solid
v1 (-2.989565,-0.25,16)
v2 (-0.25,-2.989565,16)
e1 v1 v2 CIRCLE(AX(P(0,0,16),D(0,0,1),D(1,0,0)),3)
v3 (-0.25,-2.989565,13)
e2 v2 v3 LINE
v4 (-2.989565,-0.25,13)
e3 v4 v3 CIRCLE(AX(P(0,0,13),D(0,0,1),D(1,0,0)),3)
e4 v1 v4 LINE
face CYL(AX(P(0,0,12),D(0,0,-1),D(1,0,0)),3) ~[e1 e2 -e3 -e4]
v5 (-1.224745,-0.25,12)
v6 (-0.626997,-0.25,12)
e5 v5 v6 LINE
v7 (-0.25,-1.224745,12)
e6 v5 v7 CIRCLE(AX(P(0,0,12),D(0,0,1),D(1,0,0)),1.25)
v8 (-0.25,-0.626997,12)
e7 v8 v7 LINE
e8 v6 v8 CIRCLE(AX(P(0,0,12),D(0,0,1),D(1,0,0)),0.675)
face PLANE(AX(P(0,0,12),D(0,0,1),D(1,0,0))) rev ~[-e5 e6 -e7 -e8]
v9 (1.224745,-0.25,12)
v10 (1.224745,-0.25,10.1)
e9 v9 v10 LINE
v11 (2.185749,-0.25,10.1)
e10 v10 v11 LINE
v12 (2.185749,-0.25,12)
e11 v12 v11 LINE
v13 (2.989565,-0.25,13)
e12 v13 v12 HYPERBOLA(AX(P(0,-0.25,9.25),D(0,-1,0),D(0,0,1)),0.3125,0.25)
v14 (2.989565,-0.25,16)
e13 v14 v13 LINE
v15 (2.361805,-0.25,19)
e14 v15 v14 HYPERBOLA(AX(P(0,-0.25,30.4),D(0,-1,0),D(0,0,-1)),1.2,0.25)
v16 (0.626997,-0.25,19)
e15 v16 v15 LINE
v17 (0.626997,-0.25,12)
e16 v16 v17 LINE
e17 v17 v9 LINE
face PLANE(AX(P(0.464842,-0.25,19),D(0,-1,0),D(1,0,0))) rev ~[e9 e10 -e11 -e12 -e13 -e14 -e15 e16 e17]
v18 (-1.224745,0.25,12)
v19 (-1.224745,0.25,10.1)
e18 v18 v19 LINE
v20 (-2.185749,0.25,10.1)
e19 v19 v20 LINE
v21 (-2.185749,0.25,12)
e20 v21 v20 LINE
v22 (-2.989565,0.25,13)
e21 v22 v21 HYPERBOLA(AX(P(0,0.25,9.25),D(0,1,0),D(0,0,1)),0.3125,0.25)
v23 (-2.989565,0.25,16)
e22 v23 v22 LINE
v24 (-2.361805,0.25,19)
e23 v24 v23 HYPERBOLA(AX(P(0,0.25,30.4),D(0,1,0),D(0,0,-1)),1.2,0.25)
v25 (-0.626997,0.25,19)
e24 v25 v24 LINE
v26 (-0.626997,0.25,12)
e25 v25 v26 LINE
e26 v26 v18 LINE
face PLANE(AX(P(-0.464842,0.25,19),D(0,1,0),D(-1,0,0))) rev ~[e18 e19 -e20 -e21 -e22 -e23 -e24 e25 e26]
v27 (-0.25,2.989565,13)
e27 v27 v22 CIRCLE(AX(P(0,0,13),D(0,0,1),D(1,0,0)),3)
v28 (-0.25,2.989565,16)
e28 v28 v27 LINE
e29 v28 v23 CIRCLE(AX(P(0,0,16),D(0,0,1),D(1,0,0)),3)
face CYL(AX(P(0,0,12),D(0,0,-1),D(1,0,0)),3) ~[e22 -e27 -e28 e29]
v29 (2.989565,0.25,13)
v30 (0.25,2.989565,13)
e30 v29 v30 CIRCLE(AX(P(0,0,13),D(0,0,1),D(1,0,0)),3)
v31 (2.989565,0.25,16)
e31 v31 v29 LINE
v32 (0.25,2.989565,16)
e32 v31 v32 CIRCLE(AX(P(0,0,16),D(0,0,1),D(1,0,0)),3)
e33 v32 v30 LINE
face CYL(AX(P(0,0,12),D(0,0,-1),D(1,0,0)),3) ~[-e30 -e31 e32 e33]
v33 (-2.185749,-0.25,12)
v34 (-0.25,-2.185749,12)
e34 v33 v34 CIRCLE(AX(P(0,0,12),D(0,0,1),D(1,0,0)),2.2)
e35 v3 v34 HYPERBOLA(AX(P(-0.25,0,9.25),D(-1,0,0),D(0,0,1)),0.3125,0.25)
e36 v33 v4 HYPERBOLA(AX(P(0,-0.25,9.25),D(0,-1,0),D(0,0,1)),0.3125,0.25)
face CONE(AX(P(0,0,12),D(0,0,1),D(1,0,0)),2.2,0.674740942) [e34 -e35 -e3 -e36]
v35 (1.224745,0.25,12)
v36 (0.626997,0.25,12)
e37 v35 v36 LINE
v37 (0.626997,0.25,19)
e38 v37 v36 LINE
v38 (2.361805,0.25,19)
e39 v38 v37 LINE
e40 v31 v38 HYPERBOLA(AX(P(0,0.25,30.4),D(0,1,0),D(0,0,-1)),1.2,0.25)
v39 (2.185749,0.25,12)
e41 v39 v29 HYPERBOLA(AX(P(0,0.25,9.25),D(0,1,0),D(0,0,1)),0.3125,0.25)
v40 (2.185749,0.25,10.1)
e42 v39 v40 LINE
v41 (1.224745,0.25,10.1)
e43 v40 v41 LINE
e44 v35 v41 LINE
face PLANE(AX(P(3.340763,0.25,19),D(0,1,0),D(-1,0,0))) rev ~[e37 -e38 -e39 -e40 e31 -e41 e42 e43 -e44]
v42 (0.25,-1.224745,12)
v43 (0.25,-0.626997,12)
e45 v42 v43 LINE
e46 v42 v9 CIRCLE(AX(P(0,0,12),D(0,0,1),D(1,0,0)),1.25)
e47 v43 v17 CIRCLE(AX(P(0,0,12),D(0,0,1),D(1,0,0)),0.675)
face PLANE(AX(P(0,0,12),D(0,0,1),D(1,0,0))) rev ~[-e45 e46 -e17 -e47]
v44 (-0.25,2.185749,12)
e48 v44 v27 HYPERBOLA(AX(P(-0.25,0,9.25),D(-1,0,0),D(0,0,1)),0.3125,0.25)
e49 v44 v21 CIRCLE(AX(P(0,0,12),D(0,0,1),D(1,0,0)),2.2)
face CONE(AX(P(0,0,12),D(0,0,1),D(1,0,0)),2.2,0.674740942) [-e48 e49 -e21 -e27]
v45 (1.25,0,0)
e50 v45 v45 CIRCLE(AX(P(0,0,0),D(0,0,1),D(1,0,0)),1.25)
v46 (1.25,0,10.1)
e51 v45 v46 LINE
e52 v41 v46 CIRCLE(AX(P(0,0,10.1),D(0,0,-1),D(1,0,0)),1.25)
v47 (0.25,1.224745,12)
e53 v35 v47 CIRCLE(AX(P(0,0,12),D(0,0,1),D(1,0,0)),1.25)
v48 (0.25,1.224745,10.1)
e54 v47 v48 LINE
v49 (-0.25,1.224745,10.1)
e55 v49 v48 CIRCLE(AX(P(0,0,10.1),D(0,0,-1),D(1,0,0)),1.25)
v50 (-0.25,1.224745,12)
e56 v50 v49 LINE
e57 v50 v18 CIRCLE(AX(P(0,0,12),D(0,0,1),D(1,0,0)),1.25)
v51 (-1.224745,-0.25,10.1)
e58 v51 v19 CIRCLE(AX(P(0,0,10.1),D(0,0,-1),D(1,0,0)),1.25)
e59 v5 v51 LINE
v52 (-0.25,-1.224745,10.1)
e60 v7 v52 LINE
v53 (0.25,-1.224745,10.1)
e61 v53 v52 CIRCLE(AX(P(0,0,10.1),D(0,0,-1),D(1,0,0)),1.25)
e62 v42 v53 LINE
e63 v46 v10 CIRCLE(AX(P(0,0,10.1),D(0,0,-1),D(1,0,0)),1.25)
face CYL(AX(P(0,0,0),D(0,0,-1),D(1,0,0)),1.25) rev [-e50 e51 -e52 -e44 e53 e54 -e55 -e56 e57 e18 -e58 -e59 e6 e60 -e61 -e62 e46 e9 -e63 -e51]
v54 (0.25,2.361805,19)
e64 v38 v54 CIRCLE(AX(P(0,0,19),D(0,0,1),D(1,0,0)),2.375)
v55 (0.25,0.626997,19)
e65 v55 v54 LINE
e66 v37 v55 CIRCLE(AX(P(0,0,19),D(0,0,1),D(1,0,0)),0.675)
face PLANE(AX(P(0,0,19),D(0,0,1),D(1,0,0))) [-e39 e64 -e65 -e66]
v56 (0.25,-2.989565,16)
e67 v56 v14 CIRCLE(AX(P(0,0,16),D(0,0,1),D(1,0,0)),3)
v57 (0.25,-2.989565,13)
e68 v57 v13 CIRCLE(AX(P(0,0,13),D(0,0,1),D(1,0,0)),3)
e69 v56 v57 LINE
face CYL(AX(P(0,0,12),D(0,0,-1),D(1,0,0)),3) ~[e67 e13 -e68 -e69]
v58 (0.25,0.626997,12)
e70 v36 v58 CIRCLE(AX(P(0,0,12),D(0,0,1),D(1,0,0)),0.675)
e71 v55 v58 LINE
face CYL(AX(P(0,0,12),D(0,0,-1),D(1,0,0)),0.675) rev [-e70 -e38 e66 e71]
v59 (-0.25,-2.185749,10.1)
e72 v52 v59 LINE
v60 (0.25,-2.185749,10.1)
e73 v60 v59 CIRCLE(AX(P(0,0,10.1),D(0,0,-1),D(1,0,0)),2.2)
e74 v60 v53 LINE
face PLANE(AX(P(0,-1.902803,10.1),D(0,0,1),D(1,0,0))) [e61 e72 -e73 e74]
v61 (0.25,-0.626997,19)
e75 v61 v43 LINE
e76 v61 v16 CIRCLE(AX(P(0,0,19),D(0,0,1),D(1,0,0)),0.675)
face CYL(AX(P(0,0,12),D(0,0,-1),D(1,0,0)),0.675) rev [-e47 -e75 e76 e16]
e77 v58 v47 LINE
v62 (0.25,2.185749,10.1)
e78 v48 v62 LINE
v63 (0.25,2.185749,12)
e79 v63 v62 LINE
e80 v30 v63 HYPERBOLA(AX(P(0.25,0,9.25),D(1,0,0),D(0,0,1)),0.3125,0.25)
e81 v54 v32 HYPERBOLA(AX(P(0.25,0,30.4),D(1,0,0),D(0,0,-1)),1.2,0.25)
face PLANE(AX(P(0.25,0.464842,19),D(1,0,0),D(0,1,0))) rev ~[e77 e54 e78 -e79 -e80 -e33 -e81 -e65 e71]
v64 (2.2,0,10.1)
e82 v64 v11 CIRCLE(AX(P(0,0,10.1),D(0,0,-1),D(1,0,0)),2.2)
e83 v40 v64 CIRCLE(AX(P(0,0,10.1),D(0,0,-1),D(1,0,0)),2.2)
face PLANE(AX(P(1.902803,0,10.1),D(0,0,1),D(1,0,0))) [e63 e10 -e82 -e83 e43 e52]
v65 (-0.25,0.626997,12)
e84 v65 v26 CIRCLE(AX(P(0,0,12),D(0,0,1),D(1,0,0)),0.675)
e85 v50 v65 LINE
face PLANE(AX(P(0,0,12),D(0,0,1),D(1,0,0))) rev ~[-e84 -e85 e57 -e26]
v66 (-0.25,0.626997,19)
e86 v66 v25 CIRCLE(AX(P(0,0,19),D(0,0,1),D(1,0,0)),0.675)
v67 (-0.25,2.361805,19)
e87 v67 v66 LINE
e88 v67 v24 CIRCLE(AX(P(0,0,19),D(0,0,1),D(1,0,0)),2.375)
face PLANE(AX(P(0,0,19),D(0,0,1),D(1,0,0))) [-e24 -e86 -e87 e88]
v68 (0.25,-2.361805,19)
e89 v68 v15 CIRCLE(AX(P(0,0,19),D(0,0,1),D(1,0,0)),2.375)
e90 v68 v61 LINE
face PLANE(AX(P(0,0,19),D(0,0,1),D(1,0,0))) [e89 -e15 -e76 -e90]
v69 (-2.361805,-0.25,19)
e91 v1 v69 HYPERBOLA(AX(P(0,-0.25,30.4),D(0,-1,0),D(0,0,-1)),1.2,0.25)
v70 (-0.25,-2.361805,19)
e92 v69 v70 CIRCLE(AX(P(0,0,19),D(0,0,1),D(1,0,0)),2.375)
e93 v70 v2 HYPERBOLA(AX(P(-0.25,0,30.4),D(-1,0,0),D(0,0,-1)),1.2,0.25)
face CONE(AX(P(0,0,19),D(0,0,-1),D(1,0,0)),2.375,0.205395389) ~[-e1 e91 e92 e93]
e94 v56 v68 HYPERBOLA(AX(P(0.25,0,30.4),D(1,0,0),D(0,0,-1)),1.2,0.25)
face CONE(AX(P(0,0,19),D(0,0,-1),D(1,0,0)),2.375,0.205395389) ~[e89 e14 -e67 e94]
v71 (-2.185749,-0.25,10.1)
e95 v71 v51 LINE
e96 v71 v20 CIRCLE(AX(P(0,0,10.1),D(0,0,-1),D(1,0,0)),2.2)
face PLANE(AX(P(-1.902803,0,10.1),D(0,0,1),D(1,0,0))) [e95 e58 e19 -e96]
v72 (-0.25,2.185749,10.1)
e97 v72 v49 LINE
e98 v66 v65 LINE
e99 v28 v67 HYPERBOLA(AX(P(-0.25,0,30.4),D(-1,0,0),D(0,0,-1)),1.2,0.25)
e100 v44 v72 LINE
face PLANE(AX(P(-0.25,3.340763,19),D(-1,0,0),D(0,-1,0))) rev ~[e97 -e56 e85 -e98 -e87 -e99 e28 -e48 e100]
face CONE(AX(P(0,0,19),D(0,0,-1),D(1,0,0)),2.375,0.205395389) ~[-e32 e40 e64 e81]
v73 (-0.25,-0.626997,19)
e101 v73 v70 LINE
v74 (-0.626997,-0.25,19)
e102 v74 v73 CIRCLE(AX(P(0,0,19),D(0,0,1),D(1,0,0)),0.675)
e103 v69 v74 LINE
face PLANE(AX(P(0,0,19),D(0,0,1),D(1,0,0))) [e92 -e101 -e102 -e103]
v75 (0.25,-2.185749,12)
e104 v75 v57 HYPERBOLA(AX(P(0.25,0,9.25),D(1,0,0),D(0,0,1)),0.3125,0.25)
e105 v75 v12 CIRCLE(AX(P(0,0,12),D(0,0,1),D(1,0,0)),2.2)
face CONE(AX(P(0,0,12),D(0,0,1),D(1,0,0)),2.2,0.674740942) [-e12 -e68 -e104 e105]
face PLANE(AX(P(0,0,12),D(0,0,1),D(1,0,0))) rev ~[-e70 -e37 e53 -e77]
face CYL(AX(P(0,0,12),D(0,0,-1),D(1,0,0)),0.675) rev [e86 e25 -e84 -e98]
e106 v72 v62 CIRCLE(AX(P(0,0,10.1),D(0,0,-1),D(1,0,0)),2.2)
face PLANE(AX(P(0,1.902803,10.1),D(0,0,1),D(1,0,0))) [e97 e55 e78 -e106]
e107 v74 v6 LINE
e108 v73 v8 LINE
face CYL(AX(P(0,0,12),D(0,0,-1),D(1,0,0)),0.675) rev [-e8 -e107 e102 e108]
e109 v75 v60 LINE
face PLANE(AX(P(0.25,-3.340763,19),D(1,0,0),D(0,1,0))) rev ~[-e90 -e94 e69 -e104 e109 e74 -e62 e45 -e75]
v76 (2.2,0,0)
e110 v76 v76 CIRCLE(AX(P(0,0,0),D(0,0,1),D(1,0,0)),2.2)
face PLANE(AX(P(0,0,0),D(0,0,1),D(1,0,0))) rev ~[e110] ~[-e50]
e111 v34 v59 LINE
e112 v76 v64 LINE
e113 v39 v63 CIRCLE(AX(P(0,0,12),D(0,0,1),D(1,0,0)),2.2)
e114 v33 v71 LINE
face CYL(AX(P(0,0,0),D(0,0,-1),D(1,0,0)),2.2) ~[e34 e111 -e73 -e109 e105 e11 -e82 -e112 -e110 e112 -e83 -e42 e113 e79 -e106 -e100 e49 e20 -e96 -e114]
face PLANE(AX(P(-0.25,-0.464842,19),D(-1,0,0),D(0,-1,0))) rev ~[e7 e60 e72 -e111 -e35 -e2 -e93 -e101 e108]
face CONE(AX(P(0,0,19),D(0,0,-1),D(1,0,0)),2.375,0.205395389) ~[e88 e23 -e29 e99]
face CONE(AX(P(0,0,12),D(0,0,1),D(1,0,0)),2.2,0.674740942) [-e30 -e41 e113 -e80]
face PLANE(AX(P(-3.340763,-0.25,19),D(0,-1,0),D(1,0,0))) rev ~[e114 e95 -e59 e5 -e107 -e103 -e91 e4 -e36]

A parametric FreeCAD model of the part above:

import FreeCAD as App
import Part
import Sketcher
Q = App.Units.Quantity


def add_polygon(sketch, points):
    """Adds a closed chain of lines whose ends are joined by coincident constraints."""
    first, n = sketch.GeometryCount, len(points)
    for a, b in zip(points, points[1:] + points[:1]):
        sketch.addGeometry(Part.LineSegment(App.Vector(*a, 0), App.Vector(*b, 0)), False)
    for i in range(n):
        sketch.addConstraint(Sketcher.Constraint("Coincident", first + i, 2, first + (i + 1) % n, 1))

doc = App.newDocument("Part")
body = doc.addObject("PartDesign::Body", "Body")

# Sketch on XY plane
sketch1 = doc.addObject("Sketcher::SketchObject", "Sketch")
body.addObject(sketch1)
sketch1.AttachmentSupport = (doc.XY_Plane, [""])
sketch1.MapMode = "FlatFace"
sketch1.addGeometry([
    Part.Circle(App.Vector(0, 0, 0), App.Vector(0, 0, 1), 2.2),
    Part.Circle(App.Vector(0, 0, 0), App.Vector(0, 0, 1), 1.2),
], False)
sketch1.addConstraint([
    Sketcher.Constraint("Coincident", 0, 3, -1, 1),
    Sketcher.Constraint("Coincident", 1, 3, -1, 1),
    Sketcher.Constraint("Diameter", 0, Q("4.4 mm")),
    Sketcher.Constraint("Diameter", 1, Q("2.5 mm")),
])
pad1 = doc.addObject("PartDesign::Pad", "Pad")
body.addObject(pad1)
pad1.Profile = sketch1
pad1.Length = 12

# Sketch on XY plane
sketch2 = doc.addObject("Sketcher::SketchObject", "Sketch001")
body.addObject(sketch2)
sketch2.AttachmentSupport = (doc.XY_Plane, [""])
sketch2.MapMode = "FlatFace"
sketch2.AttachmentOffset = App.Placement(App.Vector(0, 0, 12), App.Rotation())
sketch2.addGeometry([
    Part.Circle(App.Vector(0, 0, 0), App.Vector(0, 0, 1), 3),
    Part.Circle(App.Vector(0, 0, 0), App.Vector(0, 0, 1), 0.7),
], False)
sketch2.addConstraint([
    Sketcher.Constraint("Coincident", 0, 3, -1, 1),
    Sketcher.Constraint("Coincident", 1, 3, -1, 1),
    Sketcher.Constraint("Diameter", 0, Q("6 mm")),
    Sketcher.Constraint("Diameter", 1, Q("1.35 mm")),
])
pad2 = doc.addObject("PartDesign::Pad", "Pad001")
body.addObject(pad2)
pad2.Profile = sketch2
pad2.Length = 7

# Sketch on XZ plane
sketch3 = doc.addObject("Sketcher::SketchObject", "Sketch002")
body.addObject(sketch3)
sketch3.AttachmentSupport = (doc.XZ_Plane, [""])
sketch3.MapMode = "FlatFace"
add_polygon(sketch3, [(2.2, 12), (3, 13), (4.3, 12.4), (3.5, 11.2)])  # lines 0-3
add_polygon(sketch3, [(3, 16), (2.4, 19), (4.3, 20.9), (5.8, 17.2)])  # lines 4-7
sketch3.addConstraint([
    Sketcher.Constraint("Perpendicular", 2, 3),
    Sketcher.Constraint("Vertical", 0, 2, 7, 2),
    Sketcher.Constraint("DistanceX", -1, 1, 0, 2, Q("3 mm")),
    Sketcher.Constraint("DistanceY", -1, 1, 0, 2, Q("13 mm")),
    Sketcher.Constraint("DistanceY", -1, 1, 3, 2, Q("12 mm")),
    Sketcher.Constraint("DistanceY", -1, 1, 4, 2, Q("19 mm")),
    Sketcher.Constraint("DistanceY", -1, 1, 7, 2, Q("16 mm")),
    Sketcher.Constraint("DistanceX", -1, 1, 3, 2, Q("2.2 mm")),
    Sketcher.Constraint("DistanceX", -1, 1, 4, 2, Q("2.375 mm")),
    Sketcher.Constraint("Distance", 1, Q("1.427309 mm")),
    Sketcher.Constraint("Distance", 2, Q("1.45434 mm")),
    Sketcher.Constraint("Distance", 6, Q("4.054252 mm")),
    Sketcher.Constraint("DistanceX", -1, 1, 1, 2, Q("4.276309 mm")),
    Sketcher.Constraint("DistanceX", -1, 1, 6, 2, Q("5.75176 mm")),
    Sketcher.Constraint("DistanceY", 2, 2, 5, 2, Q("9.787471 mm")),
    Sketcher.Constraint("Distance", 5, Q("2.701102 mm")),
])
groove = doc.addObject("PartDesign::Groove", "Groove")
body.addObject(groove)
groove.Profile = sketch3
groove.ReferenceAxis = (sketch3, ["V_Axis"])
groove.Angle = 360

# Sketch on XY plane
sketch4 = doc.addObject("Sketcher::SketchObject", "Sketch003")
body.addObject(sketch4)
sketch4.AttachmentSupport = (doc.XY_Plane, [""])
sketch4.MapMode = "FlatFace"
sketch4.AttachmentOffset = App.Placement(App.Vector(0, 0, 19), App.Rotation())
add_polygon(sketch4, [(-0.2, 3.3), (-0.2, 0.5), (0.2, 0.5), (0.2, 3.3)])  # lines 0-3
add_polygon(sketch4, [(3.3, 0.2), (0.5, 0.2), (0.5, -0.2), (3.3, -0.2)])  # lines 4-7
add_polygon(sketch4, [(0.2, -3.3), (0.2, -0.5), (-0.2, -0.5), (-0.2, -3.3)])  # lines 8-11
add_polygon(sketch4, [(-3.3, -0.2), (-0.5, -0.2), (-0.5, 0.2), (-3.3, 0.2)])  # lines 12-15
sketch4.addConstraint([
    Sketcher.Constraint("Vertical", 0),
    Sketcher.Constraint("Horizontal", 1),
    Sketcher.Constraint("Vertical", 2),
    Sketcher.Constraint("Horizontal", 3),
    Sketcher.Constraint("Horizontal", 4),
    Sketcher.Constraint("Vertical", 5),
    Sketcher.Constraint("Horizontal", 6),
    Sketcher.Constraint("Vertical", 7),
    Sketcher.Constraint("Vertical", 8),
    Sketcher.Constraint("Horizontal", 9),
    Sketcher.Constraint("Vertical", 10),
    Sketcher.Constraint("Horizontal", 11),
    Sketcher.Constraint("Horizontal", 12),
    Sketcher.Constraint("Vertical", 13),
    Sketcher.Constraint("Horizontal", 14),
    Sketcher.Constraint("Vertical", 15),
    Sketcher.Constraint("Symmetric", 0, 2, 8, 2, -1, 1),
    Sketcher.Constraint("Symmetric", 2, 2, 10, 2, -1, 1),
    Sketcher.Constraint("Symmetric", 4, 2, 12, 2, -1, 1),
    Sketcher.Constraint("Symmetric", 6, 2, 14, 2, -1, 1),
    Sketcher.Constraint("Horizontal", 6, 2, 12, 2),
    Sketcher.Constraint("Vertical", 2, 2, 8, 2),
    Sketcher.Constraint("Equal", 14, 0),
    Sketcher.Constraint("Equal", 11, 5),
    Sketcher.Constraint("DistanceX", 1, 1, 1, 2, Q("0.5 mm")),
    Sketcher.Constraint("DistanceX", 4, 2, 4, 1, Q("2.875921 mm")),
    Sketcher.Constraint("DistanceY", -1, 1, 0, 2, Q("0.464842 mm")),
    Sketcher.Constraint("DistanceX", -1, 1, 4, 2, Q("0.464842 mm")),
])
pocket1 = doc.addObject("PartDesign::Pocket", "Pocket")
body.addObject(pocket1)
pocket1.Profile = sketch4
pocket1.Length = 8.9

doc.recompute()
